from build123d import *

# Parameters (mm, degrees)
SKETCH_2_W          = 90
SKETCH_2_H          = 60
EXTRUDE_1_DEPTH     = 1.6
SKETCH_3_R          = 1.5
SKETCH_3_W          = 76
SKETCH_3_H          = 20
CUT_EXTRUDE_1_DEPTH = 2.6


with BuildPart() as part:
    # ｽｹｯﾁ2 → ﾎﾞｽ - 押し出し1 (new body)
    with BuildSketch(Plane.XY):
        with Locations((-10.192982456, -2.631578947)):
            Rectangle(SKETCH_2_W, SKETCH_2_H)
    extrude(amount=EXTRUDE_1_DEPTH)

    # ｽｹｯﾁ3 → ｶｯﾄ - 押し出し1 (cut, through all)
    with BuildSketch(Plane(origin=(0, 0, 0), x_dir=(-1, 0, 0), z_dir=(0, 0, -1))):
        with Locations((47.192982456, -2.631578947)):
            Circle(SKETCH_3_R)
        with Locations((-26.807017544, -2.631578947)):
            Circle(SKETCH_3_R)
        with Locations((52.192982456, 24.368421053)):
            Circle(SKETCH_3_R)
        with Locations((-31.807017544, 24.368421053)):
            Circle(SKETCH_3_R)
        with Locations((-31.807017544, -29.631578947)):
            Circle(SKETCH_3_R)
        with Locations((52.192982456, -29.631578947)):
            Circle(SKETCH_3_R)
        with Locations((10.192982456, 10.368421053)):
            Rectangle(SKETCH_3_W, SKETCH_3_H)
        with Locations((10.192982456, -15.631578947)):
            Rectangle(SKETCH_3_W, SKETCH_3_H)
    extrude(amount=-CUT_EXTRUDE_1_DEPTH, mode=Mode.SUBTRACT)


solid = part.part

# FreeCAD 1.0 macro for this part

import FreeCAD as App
import Part
import Sketcher

V = App.Vector

doc = App.newDocument("Part")
body = doc.addObject("PartDesign::Body", "Body")

# Sketch on XY plane
sketch1 = body.newObject("Sketcher::SketchObject", "Sketch")
sketch1.AttachmentSupport = (doc.getObject("XY_Plane"), [""])
sketch1.MapMode = "FlatFace"
sketch1.addGeometry([
    Part.LineSegment(V(-55, 27, 0), V(-55, -33, 0)),
    Part.LineSegment(V(-55, -33, 0), V(35, -33, 0)),
    Part.LineSegment(V(35, -33, 0), V(35, 27, 0)),
    Part.LineSegment(V(35, 27, 0), V(-55, 27, 0)),
], False)
sketch1.addConstraint([
    Sketcher.Constraint("Coincident", 0, 2, 1, 1),
    Sketcher.Constraint("Coincident", 1, 2, 2, 1),
    Sketcher.Constraint("Coincident", 2, 2, 3, 1),
    Sketcher.Constraint("Coincident", 3, 2, 0, 1),
    Sketcher.Constraint("Vertical", 0),
    Sketcher.Constraint("Horizontal", 1),
    Sketcher.Constraint("Vertical", 2),
    Sketcher.Constraint("Horizontal", 3),
    Sketcher.Constraint("DistanceX", 1, 1, 1, 2, 90.0),
    Sketcher.Constraint("DistanceY", 0, 2, 0, 1, 60.0),
    Sketcher.Constraint("DistanceY", 0, 2, -1, 1, 32.631579),
    Sketcher.Constraint("DistanceX", 0, 2, -1, 1, 55.192982),
])
pad1 = body.newObject("PartDesign::Pad", "Pad")
pad1.Profile = sketch1
pad1.Length = 1.6

# Sketch on XY plane
sketch2 = body.newObject("Sketcher::SketchObject", "Sketch001")
sketch2.AttachmentSupport = (doc.getObject("XY_Plane"), [""])
sketch2.MapMode = "FlatFace"
sketch2.addGeometry([
    Part.Circle(V(-47.2, -2.6, 0), V(0, 0, 1), 1.5),  # 0
    Part.Circle(V(26.8, -2.6, 0), V(0, 0, 1), 1.5),  # 1
    Part.Circle(V(-52.2, 24.4, 0), V(0, 0, 1), 1.5),  # 2
    Part.Circle(V(31.8, 24.4, 0), V(0, 0, 1), 1.5),  # 3
    Part.Circle(V(31.8, -29.6, 0), V(0, 0, 1), 1.5),  # 4
    Part.Circle(V(-52.2, -29.6, 0), V(0, 0, 1), 1.5),  # 5
    Part.LineSegment(V(27.8, 20.4, 0), V(27.8, 0.4, 0)),  # 6
    Part.LineSegment(V(27.8, 0.4, 0), V(-48.2, 0.4, 0)),  # 7
    Part.LineSegment(V(-48.2, 0.4, 0), V(-48.2, 20.4, 0)),  # 8
    Part.LineSegment(V(-48.2, 20.4, 0), V(27.8, 20.4, 0)),  # 9
    Part.LineSegment(V(27.8, -5.6, 0), V(27.8, -25.6, 0)),  # 10
    Part.LineSegment(V(27.8, -25.6, 0), V(-48.2, -25.6, 0)),  # 11
    Part.LineSegment(V(-48.2, -25.6, 0), V(-48.2, -5.6, 0)),  # 12
    Part.LineSegment(V(-48.2, -5.6, 0), V(27.8, -5.6, 0)),  # 13
], False)
sketch2.addConstraint([
    Sketcher.Constraint("Coincident", 6, 2, 7, 1),
    Sketcher.Constraint("Coincident", 7, 2, 8, 1),
    Sketcher.Constraint("Coincident", 8, 2, 9, 1),
    Sketcher.Constraint("Coincident", 9, 2, 6, 1),
    Sketcher.Constraint("Coincident", 10, 2, 11, 1),
    Sketcher.Constraint("Coincident", 11, 2, 12, 1),
    Sketcher.Constraint("Coincident", 12, 2, 13, 1),
    Sketcher.Constraint("Coincident", 13, 2, 10, 1),
    Sketcher.Constraint("Vertical", 6),
    Sketcher.Constraint("Horizontal", 7),
    Sketcher.Constraint("Vertical", 8),
    Sketcher.Constraint("Horizontal", 9),
    Sketcher.Constraint("Vertical", 10),
    Sketcher.Constraint("Horizontal", 11),
    Sketcher.Constraint("Vertical", 12),
    Sketcher.Constraint("Horizontal", 13),
    Sketcher.Constraint("Equal", 0, 1),
    Sketcher.Constraint("Equal", 1, 2),
    Sketcher.Constraint("Equal", 2, 3),
    Sketcher.Constraint("Equal", 3, 4),
    Sketcher.Constraint("Equal", 4, 5),
    Sketcher.Constraint("Horizontal", 0, 3, 1, 3),
    Sketcher.Constraint("Horizontal", 2, 3, 3, 3),
    Sketcher.Constraint("Horizontal", 4, 3, 5, 3),
    Sketcher.Constraint("Vertical", 3, 3, 4, 3),
    Sketcher.Constraint("Vertical", 2, 3, 5, 3),
    Sketcher.Constraint("Vertical", 9, 2, 10, 2),
    Sketcher.Constraint("Vertical", 8, 2, 11, 2),
    Sketcher.Constraint("Equal", 8, 10),
    Sketcher.Constraint("Diameter", 0, 3.0),
    Sketcher.Constraint("DistanceX", 7, 2, 7, 1, 76.0),
    Sketcher.Constraint("DistanceY", 6, 2, 6, 1, 20.0),
    Sketcher.Constraint("DistanceX", 0, 3, 1, 3, 74.0),
    Sketcher.Constraint("DistanceX", 2, 3, 0, 3, 5.0),
    Sketcher.Constraint("DistanceY", 0, 3, 2, 3, 27.0),
    Sketcher.Constraint("DistanceX", 1, 3, 3, 3, 5.0),
    Sketcher.Constraint("DistanceY", 4, 3, 1, 3, 27.0),
    Sketcher.Constraint("DistanceX", 1, 3, 6, 2, 1.0),
    Sketcher.Constraint("DistanceY", 1, 3, 6, 2, 3.0),
    Sketcher.Constraint("DistanceY", 4, 3, 10, 2, 4.0),
    Sketcher.Constraint("DistanceY", 0, 3, -1, 1, 2.631579),
    Sketcher.Constraint("DistanceX", 0, 3, -1, 1, 47.192982),
])
pocket1 = body.newObject("PartDesign::Pocket", "Pocket")
pocket1.Profile = sketch2
pocket1.Type = "ThroughAll"
pocket1.Reversed = True

doc.recompute()
